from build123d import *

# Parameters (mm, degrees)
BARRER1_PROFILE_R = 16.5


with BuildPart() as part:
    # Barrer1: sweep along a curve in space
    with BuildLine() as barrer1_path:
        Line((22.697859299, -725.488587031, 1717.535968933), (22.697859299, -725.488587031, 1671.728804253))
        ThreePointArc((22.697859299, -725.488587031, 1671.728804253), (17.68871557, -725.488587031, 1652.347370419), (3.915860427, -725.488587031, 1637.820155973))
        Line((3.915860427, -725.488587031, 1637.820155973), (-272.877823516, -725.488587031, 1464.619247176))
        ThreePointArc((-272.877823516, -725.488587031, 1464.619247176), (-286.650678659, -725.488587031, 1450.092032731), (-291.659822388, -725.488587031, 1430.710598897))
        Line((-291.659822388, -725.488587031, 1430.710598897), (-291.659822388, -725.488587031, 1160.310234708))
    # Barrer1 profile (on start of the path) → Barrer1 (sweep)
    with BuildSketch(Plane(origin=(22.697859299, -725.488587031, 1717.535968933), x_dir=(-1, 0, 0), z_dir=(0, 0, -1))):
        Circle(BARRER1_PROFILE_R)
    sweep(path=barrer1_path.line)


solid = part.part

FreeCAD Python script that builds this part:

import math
import FreeCAD as App
import Part
import Sketcher
from FreeCAD import Vector

doc = App.newDocument("Part")
body = doc.addObject("PartDesign::Body", "Body")

sketch1 = doc.addObject("Sketcher::SketchObject", "Sketch")
body.addObject(sketch1)
sketch1.AttachmentSupport = (doc.XY_Plane, [""])
sketch1.MapMode = "FlatFace"
sketch1.AttachmentOffset = App.Placement(Vector(0, 0, 1717.535969), App.Rotation())
sketch1.addGeometry(Part.Circle(Vector(23, -725, 0), Vector(0, 0, 1), 16), False)
sketch1.addConstraint(Sketcher.Constraint("Diameter", 0, 33.0))
sketch1.addConstraint(Sketcher.Constraint("DistanceX", -1, 1, 0, 3, 22.697859))
sketch1.addConstraint(Sketcher.Constraint("DistanceY", 0, 3, -1, 1, 725.488587))

sketch2 = doc.addObject("Sketcher::SketchObject", "Sketch001")
body.addObject(sketch2)
sketch2.AttachmentSupport = (doc.XZ_Plane, [""])
sketch2.MapMode = "FlatFace"
sketch2.AttachmentOffset = App.Placement(Vector(0, 0, 725.488587), App.Rotation())
sketch2.addGeometry(Part.LineSegment(Vector(23, 1718, 0), Vector(23, 1672, 0)), False)
sketch2.addGeometry(Part.ArcOfCircle(Part.Circle(Vector(-17, 1672, 0), Vector(0, 0, 1), 40), math.radians(-58), math.radians(0)), False)
sketch2.addGeometry(Part.LineSegment(Vector(4, 1638, 0), Vector(-273, 1465, 0)), False)
sketch2.addGeometry(Part.ArcOfCircle(Part.Circle(Vector(-252, 1431, 0), Vector(0, 0, 1), 40), math.radians(122), math.radians(180)), False)
sketch2.addGeometry(Part.LineSegment(Vector(-292, 1431, 0), Vector(-292, 1160, 0)), False)
sketch2.addConstraint(Sketcher.Constraint("Tangent", 0, 2, 1, 2))
sketch2.addConstraint(Sketcher.Constraint("Tangent", 1, 1, 2, 1))
sketch2.addConstraint(Sketcher.Constraint("Tangent", 2, 2, 3, 1))
sketch2.addConstraint(Sketcher.Constraint("Tangent", 3, 2, 4, 1))
sketch2.addConstraint(Sketcher.Constraint("Vertical", 0))
sketch2.addConstraint(Sketcher.Constraint("Vertical", 4))
sketch2.addConstraint(Sketcher.Constraint("Equal", 1, 3))
sketch2.addConstraint(Sketcher.Constraint("Radius", 1, 40.0))
sketch2.addConstraint(Sketcher.Constraint("DistanceX", 1, 1, 0, 2, 18.781999))
sketch2.addConstraint(Sketcher.Constraint("DistanceY", -1, 1, 3, 3, 1430.710599))
sketch2.addConstraint(Sketcher.Constraint("Distance", 2, 326.516919))
sketch2.addConstraint(Sketcher.Constraint("DistanceY", 0, 2, 0, 1, 45.807165))
sketch2.addConstraint(Sketcher.Constraint("DistanceY", 4, 2, 4, 1, 270.400364))
sketch2.addConstraint(Sketcher.Constraint("DistanceX", 1, 3, -1, 1, 17.302141))
doc.recompute()

additivepipe = doc.addObject("PartDesign::AdditivePipe", "AdditivePipe")
body.addObject(additivepipe)
additivepipe.Profile = sketch1
additivepipe.Spine = (sketch2, ["Edge1", "Edge2", "Edge3", "Edge4", "Edge5"])

doc.recompute()
